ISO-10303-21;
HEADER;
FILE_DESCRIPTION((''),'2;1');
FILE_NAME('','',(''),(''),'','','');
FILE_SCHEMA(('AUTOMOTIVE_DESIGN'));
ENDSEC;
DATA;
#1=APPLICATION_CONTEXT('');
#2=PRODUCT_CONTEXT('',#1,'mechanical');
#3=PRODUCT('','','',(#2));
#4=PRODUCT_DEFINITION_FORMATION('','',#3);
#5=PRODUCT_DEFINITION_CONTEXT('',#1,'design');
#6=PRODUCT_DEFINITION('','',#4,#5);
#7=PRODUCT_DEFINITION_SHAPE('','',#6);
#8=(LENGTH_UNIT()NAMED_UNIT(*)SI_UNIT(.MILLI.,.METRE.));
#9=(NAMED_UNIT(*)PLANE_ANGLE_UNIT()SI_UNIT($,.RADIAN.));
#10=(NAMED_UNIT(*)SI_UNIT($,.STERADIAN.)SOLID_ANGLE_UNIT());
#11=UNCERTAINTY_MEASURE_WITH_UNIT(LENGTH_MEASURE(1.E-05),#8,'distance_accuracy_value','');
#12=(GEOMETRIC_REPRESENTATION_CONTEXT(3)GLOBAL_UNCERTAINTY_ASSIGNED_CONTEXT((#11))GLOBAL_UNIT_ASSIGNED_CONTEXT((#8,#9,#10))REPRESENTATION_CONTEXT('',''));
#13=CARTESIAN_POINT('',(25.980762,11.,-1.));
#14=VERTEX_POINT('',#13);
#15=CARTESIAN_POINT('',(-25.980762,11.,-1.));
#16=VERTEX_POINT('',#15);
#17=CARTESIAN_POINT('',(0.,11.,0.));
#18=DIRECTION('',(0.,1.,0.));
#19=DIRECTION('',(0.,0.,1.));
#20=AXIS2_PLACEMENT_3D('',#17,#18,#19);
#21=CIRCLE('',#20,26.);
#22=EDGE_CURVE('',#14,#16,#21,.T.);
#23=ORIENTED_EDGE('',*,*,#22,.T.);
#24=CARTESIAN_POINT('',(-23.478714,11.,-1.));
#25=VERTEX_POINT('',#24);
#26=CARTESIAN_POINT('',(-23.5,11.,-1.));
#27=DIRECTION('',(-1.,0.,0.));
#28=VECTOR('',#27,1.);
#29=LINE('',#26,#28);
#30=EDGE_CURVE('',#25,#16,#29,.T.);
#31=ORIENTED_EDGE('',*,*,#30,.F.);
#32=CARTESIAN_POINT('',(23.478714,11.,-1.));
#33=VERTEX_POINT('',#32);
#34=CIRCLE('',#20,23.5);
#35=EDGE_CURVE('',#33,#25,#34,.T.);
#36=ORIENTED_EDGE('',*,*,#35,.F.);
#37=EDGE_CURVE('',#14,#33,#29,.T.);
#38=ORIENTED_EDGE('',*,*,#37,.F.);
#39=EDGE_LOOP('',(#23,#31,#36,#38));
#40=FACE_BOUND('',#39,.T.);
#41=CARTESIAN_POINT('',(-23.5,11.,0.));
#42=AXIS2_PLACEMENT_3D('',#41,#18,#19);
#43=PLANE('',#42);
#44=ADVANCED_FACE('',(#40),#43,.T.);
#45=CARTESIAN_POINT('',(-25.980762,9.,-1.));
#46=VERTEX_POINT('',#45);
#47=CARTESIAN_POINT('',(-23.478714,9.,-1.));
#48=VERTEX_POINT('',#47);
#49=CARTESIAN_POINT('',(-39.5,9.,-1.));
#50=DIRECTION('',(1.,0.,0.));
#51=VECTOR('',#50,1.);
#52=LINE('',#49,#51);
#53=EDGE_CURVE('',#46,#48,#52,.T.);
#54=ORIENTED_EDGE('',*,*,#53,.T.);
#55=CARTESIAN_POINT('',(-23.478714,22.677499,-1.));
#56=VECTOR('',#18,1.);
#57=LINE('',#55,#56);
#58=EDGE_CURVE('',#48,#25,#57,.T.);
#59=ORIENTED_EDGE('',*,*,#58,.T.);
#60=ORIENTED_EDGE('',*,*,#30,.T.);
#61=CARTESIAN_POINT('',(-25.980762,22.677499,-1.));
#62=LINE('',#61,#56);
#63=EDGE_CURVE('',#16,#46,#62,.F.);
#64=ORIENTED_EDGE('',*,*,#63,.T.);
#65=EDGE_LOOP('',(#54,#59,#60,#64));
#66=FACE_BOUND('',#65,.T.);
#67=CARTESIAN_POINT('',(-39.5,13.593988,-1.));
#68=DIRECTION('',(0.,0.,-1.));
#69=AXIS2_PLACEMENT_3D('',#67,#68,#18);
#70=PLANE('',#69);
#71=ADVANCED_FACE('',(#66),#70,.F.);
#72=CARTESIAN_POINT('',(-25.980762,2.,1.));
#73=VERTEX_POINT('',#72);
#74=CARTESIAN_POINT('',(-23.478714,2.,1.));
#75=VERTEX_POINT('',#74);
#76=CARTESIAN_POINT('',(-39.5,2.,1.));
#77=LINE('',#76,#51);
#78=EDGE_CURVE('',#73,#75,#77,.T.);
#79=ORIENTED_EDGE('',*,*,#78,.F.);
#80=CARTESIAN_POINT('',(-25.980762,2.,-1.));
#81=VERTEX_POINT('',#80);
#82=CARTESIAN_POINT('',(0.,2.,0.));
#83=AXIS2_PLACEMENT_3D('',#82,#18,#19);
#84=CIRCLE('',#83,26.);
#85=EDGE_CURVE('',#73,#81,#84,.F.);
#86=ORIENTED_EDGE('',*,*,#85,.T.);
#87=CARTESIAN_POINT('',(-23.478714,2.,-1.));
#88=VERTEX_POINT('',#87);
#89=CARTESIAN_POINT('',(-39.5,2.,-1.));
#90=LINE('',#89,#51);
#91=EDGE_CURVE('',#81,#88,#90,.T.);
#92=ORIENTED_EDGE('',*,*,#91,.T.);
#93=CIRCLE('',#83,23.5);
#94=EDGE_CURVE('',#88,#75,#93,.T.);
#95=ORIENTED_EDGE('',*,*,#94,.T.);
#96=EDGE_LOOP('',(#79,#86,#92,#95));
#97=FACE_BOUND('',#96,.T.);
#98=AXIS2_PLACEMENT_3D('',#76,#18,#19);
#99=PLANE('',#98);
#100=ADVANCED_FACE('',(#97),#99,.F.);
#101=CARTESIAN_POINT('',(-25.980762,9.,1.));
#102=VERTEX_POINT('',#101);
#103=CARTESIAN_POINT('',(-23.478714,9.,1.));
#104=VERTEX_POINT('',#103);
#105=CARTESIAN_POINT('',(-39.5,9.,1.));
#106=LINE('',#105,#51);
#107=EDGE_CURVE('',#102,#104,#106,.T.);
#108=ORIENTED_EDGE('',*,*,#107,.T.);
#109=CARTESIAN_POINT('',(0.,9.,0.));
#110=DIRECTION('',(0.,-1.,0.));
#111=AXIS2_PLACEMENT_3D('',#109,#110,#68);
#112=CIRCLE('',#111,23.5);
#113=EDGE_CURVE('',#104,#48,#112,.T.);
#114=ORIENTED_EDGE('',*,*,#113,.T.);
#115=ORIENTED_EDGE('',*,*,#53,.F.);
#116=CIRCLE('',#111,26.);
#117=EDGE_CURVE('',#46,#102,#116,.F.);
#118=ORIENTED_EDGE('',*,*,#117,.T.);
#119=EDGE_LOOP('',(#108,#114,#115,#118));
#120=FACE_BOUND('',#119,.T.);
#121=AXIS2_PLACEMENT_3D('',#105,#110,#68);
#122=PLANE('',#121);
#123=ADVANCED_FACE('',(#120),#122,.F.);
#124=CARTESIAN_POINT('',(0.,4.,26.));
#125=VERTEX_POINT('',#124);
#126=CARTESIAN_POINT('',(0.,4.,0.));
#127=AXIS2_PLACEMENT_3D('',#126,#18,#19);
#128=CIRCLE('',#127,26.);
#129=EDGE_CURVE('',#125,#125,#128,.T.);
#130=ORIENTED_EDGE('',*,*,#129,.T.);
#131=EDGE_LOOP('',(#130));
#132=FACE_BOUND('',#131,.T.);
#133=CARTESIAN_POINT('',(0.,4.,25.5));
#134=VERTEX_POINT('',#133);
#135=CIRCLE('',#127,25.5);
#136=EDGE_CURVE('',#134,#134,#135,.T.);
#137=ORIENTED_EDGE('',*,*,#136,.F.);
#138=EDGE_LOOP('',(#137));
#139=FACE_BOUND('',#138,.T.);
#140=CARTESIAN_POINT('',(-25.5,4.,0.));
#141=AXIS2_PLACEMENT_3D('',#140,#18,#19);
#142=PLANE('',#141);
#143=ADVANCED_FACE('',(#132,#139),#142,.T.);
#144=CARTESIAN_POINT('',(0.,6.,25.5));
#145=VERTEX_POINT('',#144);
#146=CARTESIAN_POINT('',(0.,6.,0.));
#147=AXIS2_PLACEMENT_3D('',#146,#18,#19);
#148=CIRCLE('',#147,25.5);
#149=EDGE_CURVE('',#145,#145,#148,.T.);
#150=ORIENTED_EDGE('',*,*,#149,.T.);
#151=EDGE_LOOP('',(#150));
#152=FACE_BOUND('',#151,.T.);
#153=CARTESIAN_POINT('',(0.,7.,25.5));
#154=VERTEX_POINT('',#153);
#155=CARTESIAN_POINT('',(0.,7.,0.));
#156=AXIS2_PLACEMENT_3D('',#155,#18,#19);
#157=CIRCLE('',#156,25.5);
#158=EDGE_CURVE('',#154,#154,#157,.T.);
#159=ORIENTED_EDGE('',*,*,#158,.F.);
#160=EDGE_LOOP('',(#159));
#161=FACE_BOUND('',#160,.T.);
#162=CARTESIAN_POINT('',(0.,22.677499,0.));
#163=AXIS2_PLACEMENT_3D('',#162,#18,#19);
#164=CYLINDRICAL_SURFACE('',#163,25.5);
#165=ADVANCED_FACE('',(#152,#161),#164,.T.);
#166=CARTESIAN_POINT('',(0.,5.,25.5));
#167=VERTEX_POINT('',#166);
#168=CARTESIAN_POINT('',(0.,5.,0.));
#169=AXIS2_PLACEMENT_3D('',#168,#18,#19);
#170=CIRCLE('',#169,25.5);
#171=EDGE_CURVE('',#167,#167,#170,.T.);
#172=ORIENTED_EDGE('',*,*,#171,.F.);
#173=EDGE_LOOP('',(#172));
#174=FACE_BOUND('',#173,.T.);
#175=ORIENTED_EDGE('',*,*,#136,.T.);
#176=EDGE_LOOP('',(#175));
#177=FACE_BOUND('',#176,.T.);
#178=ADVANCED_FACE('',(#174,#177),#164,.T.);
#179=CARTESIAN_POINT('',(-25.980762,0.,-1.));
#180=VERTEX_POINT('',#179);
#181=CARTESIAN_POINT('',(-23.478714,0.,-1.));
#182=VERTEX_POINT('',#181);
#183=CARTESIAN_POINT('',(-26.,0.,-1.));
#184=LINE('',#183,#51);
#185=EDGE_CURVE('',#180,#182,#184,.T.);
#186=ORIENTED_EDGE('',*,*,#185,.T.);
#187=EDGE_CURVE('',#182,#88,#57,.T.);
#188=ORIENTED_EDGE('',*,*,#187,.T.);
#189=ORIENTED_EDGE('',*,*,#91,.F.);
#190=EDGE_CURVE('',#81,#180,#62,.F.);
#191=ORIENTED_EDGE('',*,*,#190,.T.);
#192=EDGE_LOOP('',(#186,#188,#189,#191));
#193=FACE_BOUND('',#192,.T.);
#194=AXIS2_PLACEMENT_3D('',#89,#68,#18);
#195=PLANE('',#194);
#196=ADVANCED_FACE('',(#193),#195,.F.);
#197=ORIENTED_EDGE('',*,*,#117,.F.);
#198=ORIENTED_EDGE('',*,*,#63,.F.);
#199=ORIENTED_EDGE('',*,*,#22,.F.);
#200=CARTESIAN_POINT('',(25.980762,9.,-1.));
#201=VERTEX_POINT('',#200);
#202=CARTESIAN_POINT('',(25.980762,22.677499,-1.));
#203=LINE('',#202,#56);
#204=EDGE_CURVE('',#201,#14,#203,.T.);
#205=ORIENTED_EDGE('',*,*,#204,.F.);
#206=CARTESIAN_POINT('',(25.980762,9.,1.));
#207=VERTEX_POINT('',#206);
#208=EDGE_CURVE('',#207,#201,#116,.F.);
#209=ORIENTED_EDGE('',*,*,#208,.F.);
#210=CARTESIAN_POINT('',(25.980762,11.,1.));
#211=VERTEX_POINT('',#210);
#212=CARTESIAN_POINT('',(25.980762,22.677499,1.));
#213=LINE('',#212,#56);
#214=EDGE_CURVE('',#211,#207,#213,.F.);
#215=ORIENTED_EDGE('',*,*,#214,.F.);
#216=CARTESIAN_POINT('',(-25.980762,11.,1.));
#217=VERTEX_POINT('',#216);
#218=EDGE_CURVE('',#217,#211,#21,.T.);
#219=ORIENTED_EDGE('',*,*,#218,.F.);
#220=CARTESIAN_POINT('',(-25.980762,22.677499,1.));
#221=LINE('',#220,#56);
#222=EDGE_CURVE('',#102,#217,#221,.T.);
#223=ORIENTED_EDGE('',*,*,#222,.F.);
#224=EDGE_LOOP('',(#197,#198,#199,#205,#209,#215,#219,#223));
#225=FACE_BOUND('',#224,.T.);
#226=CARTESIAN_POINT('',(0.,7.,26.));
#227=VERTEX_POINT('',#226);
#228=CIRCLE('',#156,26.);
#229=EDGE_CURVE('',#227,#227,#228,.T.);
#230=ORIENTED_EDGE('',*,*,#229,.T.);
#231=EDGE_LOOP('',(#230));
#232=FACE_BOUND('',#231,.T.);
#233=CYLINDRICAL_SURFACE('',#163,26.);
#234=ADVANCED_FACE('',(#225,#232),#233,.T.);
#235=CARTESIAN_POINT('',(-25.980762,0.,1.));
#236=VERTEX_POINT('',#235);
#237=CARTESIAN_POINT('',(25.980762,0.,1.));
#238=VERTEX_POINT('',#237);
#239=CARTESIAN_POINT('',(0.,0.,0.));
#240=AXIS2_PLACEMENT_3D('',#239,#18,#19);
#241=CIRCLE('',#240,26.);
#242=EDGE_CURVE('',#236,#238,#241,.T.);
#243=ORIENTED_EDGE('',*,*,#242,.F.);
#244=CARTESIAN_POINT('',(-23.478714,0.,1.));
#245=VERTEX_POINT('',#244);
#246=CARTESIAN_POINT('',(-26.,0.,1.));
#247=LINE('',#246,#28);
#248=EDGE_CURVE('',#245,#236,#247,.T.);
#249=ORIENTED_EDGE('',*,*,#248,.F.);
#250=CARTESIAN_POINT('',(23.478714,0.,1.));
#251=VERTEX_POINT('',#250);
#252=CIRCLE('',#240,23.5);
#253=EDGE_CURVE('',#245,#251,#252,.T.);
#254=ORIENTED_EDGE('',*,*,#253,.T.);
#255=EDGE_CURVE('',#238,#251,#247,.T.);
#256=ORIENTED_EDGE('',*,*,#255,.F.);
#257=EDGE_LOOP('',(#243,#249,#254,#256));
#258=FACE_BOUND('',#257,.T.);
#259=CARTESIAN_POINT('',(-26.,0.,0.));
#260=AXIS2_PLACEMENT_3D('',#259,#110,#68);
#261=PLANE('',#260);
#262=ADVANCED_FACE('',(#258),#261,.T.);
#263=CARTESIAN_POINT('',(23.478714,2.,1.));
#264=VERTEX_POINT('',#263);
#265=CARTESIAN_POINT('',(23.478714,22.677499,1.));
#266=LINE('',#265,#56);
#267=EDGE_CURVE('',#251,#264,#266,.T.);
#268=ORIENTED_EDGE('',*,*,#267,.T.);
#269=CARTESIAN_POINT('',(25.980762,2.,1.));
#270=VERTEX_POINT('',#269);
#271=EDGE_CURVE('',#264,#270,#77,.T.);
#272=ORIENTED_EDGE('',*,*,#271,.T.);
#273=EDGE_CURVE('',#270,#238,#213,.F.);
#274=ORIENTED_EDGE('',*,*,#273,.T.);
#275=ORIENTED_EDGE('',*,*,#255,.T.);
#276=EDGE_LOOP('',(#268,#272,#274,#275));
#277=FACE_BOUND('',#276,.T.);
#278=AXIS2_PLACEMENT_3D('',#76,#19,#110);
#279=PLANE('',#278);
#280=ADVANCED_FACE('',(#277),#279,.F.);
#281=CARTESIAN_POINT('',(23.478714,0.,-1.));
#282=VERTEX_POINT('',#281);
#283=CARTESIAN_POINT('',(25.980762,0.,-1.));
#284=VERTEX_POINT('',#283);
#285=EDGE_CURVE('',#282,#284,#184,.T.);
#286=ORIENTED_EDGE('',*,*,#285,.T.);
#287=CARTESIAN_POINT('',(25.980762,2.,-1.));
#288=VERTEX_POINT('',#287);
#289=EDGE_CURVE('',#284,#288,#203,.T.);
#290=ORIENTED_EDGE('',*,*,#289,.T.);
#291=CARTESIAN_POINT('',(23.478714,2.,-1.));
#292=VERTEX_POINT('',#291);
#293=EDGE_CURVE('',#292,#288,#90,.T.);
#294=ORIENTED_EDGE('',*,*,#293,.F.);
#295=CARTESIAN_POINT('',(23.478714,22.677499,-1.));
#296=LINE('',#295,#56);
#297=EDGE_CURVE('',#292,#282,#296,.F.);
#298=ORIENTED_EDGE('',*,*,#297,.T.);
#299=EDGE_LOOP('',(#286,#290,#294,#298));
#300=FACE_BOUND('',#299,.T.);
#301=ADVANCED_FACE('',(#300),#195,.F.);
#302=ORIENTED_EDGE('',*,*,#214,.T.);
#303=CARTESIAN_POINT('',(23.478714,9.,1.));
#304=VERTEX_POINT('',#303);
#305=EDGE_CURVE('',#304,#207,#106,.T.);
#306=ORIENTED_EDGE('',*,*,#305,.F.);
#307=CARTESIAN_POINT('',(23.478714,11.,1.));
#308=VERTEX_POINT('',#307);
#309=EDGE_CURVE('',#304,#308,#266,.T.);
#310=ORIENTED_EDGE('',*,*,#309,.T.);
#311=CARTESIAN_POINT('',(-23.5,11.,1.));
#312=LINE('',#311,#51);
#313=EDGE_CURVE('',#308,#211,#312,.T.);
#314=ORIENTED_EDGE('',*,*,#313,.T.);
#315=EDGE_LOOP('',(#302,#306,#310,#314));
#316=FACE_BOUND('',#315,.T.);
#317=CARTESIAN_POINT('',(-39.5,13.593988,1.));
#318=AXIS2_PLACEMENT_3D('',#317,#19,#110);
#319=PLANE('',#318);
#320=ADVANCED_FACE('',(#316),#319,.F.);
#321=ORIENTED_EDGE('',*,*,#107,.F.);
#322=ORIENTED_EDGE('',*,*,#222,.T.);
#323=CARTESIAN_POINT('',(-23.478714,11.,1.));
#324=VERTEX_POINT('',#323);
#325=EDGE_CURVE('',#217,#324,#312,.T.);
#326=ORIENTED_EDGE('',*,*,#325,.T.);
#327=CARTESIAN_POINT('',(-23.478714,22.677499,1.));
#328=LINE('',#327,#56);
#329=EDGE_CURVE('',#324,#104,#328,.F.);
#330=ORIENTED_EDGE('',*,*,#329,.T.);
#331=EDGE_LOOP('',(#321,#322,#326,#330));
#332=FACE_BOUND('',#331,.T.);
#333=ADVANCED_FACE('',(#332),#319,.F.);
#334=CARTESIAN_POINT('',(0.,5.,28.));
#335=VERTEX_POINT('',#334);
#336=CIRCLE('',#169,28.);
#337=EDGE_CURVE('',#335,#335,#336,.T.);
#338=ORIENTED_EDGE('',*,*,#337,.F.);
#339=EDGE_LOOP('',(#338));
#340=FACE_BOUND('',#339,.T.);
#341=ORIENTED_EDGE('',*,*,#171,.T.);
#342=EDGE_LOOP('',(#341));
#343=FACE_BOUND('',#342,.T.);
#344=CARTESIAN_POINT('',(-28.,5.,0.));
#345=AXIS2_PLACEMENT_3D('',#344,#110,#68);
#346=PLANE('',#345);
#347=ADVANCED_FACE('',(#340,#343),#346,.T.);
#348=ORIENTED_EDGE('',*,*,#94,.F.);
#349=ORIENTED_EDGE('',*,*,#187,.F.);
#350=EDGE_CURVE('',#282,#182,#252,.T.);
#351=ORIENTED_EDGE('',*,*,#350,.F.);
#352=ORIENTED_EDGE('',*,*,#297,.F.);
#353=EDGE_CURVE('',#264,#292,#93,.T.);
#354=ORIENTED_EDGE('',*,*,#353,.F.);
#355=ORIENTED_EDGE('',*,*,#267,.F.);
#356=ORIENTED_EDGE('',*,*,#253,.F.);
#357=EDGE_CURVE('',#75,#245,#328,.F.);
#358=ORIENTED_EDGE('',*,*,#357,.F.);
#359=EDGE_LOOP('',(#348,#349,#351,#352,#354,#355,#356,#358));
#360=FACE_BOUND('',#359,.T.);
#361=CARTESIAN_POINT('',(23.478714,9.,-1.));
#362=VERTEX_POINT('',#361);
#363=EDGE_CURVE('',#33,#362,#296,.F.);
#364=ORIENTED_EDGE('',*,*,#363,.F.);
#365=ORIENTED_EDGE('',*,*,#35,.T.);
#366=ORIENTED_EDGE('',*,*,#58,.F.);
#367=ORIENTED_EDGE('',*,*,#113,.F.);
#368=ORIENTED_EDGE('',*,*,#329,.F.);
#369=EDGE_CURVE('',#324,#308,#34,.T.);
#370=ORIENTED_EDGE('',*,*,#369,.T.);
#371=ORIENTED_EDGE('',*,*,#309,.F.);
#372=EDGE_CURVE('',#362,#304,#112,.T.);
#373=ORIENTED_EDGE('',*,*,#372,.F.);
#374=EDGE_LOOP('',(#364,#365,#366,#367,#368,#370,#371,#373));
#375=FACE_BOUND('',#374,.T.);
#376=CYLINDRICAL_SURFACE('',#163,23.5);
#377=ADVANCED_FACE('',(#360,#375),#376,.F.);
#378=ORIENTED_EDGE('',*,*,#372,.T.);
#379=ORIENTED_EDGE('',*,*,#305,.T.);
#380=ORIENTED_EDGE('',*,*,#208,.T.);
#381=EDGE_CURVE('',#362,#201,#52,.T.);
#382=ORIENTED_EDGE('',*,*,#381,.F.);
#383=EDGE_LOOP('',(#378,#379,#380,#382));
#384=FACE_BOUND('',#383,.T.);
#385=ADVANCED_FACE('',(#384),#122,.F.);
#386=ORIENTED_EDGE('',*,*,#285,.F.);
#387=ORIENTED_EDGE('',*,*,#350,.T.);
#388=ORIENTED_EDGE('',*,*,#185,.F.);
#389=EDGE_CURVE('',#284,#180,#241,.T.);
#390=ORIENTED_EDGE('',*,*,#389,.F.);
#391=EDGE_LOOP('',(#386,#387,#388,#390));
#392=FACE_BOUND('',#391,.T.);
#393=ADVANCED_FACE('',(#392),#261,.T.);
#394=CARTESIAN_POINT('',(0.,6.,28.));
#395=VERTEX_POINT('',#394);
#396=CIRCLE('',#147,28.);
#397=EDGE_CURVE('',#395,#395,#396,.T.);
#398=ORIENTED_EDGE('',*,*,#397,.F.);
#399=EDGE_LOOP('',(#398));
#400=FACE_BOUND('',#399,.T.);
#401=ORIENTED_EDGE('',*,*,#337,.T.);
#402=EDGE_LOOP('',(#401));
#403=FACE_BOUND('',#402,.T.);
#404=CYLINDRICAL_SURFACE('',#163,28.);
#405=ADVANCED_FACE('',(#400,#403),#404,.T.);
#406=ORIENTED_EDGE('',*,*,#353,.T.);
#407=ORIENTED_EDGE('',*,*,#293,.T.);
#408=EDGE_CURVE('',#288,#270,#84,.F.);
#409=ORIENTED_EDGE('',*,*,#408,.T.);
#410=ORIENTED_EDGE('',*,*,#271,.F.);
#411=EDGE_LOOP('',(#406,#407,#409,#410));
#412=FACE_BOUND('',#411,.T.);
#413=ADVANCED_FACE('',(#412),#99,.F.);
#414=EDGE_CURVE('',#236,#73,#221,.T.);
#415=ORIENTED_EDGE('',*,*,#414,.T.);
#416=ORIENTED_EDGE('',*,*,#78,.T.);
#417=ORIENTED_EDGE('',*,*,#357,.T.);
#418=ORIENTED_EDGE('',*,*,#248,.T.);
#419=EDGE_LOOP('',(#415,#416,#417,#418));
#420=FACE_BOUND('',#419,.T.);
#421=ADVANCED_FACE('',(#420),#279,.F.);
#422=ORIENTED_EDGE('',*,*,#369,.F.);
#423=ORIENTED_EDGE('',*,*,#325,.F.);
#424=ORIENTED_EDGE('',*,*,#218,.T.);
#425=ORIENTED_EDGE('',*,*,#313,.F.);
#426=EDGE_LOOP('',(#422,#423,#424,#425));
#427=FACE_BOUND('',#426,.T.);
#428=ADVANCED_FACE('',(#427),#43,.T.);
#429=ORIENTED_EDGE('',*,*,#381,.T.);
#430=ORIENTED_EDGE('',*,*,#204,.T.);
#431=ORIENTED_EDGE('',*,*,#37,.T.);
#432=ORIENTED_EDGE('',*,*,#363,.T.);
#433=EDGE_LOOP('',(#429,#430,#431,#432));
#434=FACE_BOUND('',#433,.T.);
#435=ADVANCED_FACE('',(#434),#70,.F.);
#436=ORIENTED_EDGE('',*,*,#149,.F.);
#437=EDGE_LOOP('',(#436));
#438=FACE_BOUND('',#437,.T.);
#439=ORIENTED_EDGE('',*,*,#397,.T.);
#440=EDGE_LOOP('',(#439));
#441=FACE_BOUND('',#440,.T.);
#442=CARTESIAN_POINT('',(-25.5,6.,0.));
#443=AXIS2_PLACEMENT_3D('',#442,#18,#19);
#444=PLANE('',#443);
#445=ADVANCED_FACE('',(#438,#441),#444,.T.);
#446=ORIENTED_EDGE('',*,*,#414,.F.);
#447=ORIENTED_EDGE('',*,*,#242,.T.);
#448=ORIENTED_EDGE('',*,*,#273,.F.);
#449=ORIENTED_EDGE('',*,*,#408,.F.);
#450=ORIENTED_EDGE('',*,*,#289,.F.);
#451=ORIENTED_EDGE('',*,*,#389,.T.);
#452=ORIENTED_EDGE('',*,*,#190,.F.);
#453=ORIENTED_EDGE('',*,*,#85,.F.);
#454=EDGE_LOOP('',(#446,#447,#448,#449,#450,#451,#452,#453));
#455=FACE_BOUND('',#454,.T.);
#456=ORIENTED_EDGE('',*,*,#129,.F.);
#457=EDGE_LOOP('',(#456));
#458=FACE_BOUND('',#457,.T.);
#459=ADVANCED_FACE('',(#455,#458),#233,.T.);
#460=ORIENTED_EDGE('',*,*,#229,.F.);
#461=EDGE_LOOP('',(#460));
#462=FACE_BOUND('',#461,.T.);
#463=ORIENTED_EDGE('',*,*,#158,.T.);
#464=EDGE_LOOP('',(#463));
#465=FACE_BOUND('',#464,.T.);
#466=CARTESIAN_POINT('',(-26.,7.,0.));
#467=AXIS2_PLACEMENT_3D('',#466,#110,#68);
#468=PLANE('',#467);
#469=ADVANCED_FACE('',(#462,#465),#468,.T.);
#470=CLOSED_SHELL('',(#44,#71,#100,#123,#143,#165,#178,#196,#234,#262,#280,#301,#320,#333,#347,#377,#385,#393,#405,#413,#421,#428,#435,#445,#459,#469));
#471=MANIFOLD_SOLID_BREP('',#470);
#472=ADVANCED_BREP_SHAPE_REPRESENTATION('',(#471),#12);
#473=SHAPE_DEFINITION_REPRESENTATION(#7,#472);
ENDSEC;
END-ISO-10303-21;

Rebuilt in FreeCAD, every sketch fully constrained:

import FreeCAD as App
import Part
import Sketcher
Q = App.Units.Quantity


def add_polygon(sketch, points):
    """Adds a closed chain of lines whose ends are joined by coincident constraints."""
    first, n = sketch.GeometryCount, len(points)
    for a, b in zip(points, points[1:] + points[:1]):
        sketch.addGeometry(Part.LineSegment(App.Vector(*a, 0), App.Vector(*b, 0)), False)
    for i in range(n):
        sketch.addConstraint(Sketcher.Constraint("Coincident", first + i, 2, first + (i + 1) % n, 1))

doc = App.newDocument("Part")
body = doc.addObject("PartDesign::Body", "Body")

# Sketch on XY plane
sketch1 = body.newObject("Sketcher::SketchObject", "Sketch")
sketch1.AttachmentSupport = (doc.getObject("XY_Plane"), [""])
sketch1.MapMode = "FlatFace"
add_polygon(sketch1, [(-23.5, 11), (-26, 11), (-26, 7), (-25.5, 7), (-25.5, 6), (-28, 6), (-28, 5), (-25.5, 5), (-25.5, 4), (-26, 4), (-26, 0), (-23.5, 0)])  # lines 0-11
sketch1.addConstraint([
    Sketcher.Constraint("Horizontal", 0),
    Sketcher.Constraint("Vertical", 1),
    Sketcher.Constraint("Horizontal", 2),
    Sketcher.Constraint("Vertical", 3),
    Sketcher.Constraint("Horizontal", 4),
    Sketcher.Constraint("Vertical", 5),
    Sketcher.Constraint("Horizontal", 6),
    Sketcher.Constraint("Vertical", 7),
    Sketcher.Constraint("Horizontal", 8),
    Sketcher.Constraint("Vertical", 9),
    Sketcher.Constraint("Horizontal", 10),
    Sketcher.Constraint("Vertical", 11),
    Sketcher.Constraint("PointOnObject", 9, 2, -1),
    Sketcher.Constraint("Vertical", 3, 2, 6, 2),
    Sketcher.Constraint("Vertical", 1, 2, 8, 2),
    Sketcher.Constraint("Equal", 0, 4),
    Sketcher.Constraint("Equal", 3, 5),
    Sketcher.Constraint("Equal", 5, 7),
    Sketcher.Constraint("Equal", 1, 9),
    Sketcher.Constraint("DistanceY", 1, 2, 1, 1, Q("4 mm")),
    Sketcher.Constraint("DistanceY", 3, 2, 3, 1, Q("1 mm")),
    Sketcher.Constraint("DistanceX", 0, 2, 0, 1, Q("2.5 mm")),
    Sketcher.Constraint("DistanceX", 2, 1, 2, 2, Q("0.5 mm")),
    Sketcher.Constraint("DistanceX", 0, 2, -1, 1, Q("26 mm")),
])
revolution = body.newObject("PartDesign::Revolution", "Revolution")
revolution.Profile = sketch1
revolution.ReferenceAxis = (sketch1, ["V_Axis"])
revolution.Angle = 360

# Sketch on YZ plane
sketch2 = body.newObject("Sketcher::SketchObject", "Sketch001")
sketch2.AttachmentSupport = (doc.getObject("YZ_Plane"), [""])
sketch2.MapMode = "FlatFace"
add_polygon(sketch2, [(13.6, 1), (9, 1), (9, -1), (13.6, -1)])  # lines 0-3
add_polygon(sketch2, [(2, 1), (-4.7, 1), (-4.7, -1), (2, -1)])  # lines 4-7
sketch2.addConstraint([
    Sketcher.Constraint("Horizontal", 0),
    Sketcher.Constraint("Vertical", 1),
    Sketcher.Constraint("Horizontal", 2),
    Sketcher.Constraint("Vertical", 3),
    Sketcher.Constraint("Horizontal", 4),
    Sketcher.Constraint("Vertical", 5),
    Sketcher.Constraint("Horizontal", 6),
    Sketcher.Constraint("Vertical", 7),
    Sketcher.Constraint("Horizontal", 3, 2, 4, 2),
    Sketcher.Constraint("Horizontal", 2, 2, 5, 2),
    Sketcher.Constraint("DistanceY", 1, 2, 1, 1, Q("2 mm")),
    Sketcher.Constraint("DistanceX", -1, 1, 0, 2, Q("9 mm")),
    Sketcher.Constraint("DistanceY", -1, 1, 0, 2, Q("1 mm")),
    Sketcher.Constraint("DistanceX", -1, 1, 6, 2, Q("2 mm")),
    Sketcher.Constraint("DistanceX", 0, 2, 0, 1, Q("4.593988 mm")),
    Sketcher.Constraint("DistanceX", 4, 2, 4, 1, Q("6.667892 mm")),
])
pocket1 = body.newObject("PartDesign::Pocket", "Pocket")
pocket1.Profile = sketch2
pocket1.Length = 79
pocket1.Midplane = True

doc.recompute()
